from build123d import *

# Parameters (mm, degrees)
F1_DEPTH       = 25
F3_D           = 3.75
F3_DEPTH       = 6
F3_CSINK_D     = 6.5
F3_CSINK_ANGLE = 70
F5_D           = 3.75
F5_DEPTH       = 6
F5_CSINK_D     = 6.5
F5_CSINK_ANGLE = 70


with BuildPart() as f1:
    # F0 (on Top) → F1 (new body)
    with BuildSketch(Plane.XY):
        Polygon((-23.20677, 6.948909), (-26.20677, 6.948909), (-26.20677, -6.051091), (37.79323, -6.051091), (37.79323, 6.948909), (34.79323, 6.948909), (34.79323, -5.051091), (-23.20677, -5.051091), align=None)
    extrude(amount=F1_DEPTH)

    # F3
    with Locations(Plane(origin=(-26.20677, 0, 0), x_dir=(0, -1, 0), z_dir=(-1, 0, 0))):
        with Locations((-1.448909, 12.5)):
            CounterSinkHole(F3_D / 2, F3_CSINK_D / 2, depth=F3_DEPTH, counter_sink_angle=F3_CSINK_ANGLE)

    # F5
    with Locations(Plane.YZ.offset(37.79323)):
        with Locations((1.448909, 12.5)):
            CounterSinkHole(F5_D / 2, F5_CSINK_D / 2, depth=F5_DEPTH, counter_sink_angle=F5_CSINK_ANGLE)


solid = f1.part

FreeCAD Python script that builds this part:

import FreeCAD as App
import Part
import Sketcher
Q = App.Units.Quantity

doc = App.newDocument("Part")
params = doc.addObject("Spreadsheet::Sheet", "Params")
for row, (alias, value) in enumerate([
    ("sketch1_width", "3 mm"),
    ("sketch1_width2", "64 mm"),
    ("sketch1_height", "13 mm"),
    ("sketch1_height2", "12 mm"),
    ("pad1_length", "25 mm"),
    ("sketch2_diameter", "3.75 mm"),
    ("hole_diameter", "3.75 mm"),
    ("hole_depth", "6 mm"),
    ("hole_csink_diameter", "6.5 mm"),
    ("sketch3_diameter", "3.75 mm"),
    ("hole2_diameter", "3.75 mm"),
    ("hole2_depth", "6 mm"),
    ("hole2_csink_diameter", "6.5 mm"),
], start=1):
    params.set(f"A{row}", alias)
    params.set(f"B{row}", "=" + value)
    params.setAlias(f"B{row}", alias)

body = doc.addObject("PartDesign::Body", "Body")

# Sketch on XY plane
sketch1 = body.newObject("Sketcher::SketchObject", "Sketch")
sketch1.AttachmentSupport = (doc.getObject("XY_Plane"), [""])
sketch1.MapMode = "FlatFace"
sketch1.addGeometry(Part.LineSegment(App.Vector(-23.2, 6.9, 0), App.Vector(-26.2, 6.9, 0)), False)
sketch1.addGeometry(Part.LineSegment(App.Vector(-26.2, 6.9, 0), App.Vector(-26.2, -6.1, 0)), False)
sketch1.addGeometry(Part.LineSegment(App.Vector(-26.2, -6.1, 0), App.Vector(37.8, -6.1, 0)), False)
sketch1.addGeometry(Part.LineSegment(App.Vector(37.8, -6.1, 0), App.Vector(37.8, 6.9, 0)), False)
sketch1.addGeometry(Part.LineSegment(App.Vector(37.8, 6.9, 0), App.Vector(34.8, 6.9, 0)), False)
sketch1.addGeometry(Part.LineSegment(App.Vector(34.8, 6.9, 0), App.Vector(34.8, -5.1, 0)), False)
sketch1.addGeometry(Part.LineSegment(App.Vector(34.8, -5.1, 0), App.Vector(-23.2, -5.1, 0)), False)
sketch1.addGeometry(Part.LineSegment(App.Vector(-23.2, -5.1, 0), App.Vector(-23.2, 6.9, 0)), False)
sketch1.addConstraint(Sketcher.Constraint("Coincident", 0, 2, 1, 1))
sketch1.addConstraint(Sketcher.Constraint("Coincident", 1, 2, 2, 1))
sketch1.addConstraint(Sketcher.Constraint("Coincident", 2, 2, 3, 1))
sketch1.addConstraint(Sketcher.Constraint("Coincident", 3, 2, 4, 1))
sketch1.addConstraint(Sketcher.Constraint("Coincident", 4, 2, 5, 1))
sketch1.addConstraint(Sketcher.Constraint("Coincident", 5, 2, 6, 1))
sketch1.addConstraint(Sketcher.Constraint("Coincident", 6, 2, 7, 1))
sketch1.addConstraint(Sketcher.Constraint("Coincident", 7, 2, 0, 1))
sketch1.addConstraint(Sketcher.Constraint("Horizontal", 0))
sketch1.addConstraint(Sketcher.Constraint("Vertical", 1))
sketch1.addConstraint(Sketcher.Constraint("Horizontal", 2))
sketch1.addConstraint(Sketcher.Constraint("Vertical", 3))
sketch1.addConstraint(Sketcher.Constraint("Horizontal", 4))
sketch1.addConstraint(Sketcher.Constraint("Vertical", 5))
sketch1.addConstraint(Sketcher.Constraint("Horizontal", 6))
sketch1.addConstraint(Sketcher.Constraint("Vertical", 7))
sketch1.addConstraint(Sketcher.Constraint("Horizontal", 0, 2, 3, 2))
sketch1.addConstraint(Sketcher.Constraint("Equal", 0, 4))
sketch1.addConstraint(Sketcher.Constraint("DistanceX", 0, 2, 0, 1, Q("3 mm")))
sketch1.addConstraint(Sketcher.Constraint("DistanceX", 2, 1, 2, 2, Q("64 mm")))
sketch1.addConstraint(Sketcher.Constraint("DistanceY", 1, 2, 1, 1, Q("13 mm")))
sketch1.addConstraint(Sketcher.Constraint("DistanceY", 5, 2, 5, 1, Q("12 mm")))
sketch1.addConstraint(Sketcher.Constraint("DistanceX", 0, 2, -1, 1, Q("26.20677 mm")))
sketch1.addConstraint(Sketcher.Constraint("DistanceY", -1, 1, 0, 2, Q("6.948909 mm")))
sketch1.setExpression("Constraints[18]", "Params.sketch1_width")
sketch1.setExpression("Constraints[19]", "Params.sketch1_width2")
sketch1.setExpression("Constraints[20]", "Params.sketch1_height")
sketch1.setExpression("Constraints[21]", "Params.sketch1_height2")
pad1 = body.newObject("PartDesign::Pad", "Pad")
pad1.Profile = sketch1
pad1.setExpression("Length", "Params.pad1_length")

# Sketch on YZ plane
sketch2 = body.newObject("Sketcher::SketchObject", "Sketch001")
sketch2.AttachmentSupport = (doc.getObject("YZ_Plane"), [""])
sketch2.MapMode = "FlatFace"
sketch2.AttachmentOffset = App.Placement(App.Vector(0, 0, -26.20677), App.Rotation())
sketch2.addGeometry(Part.Circle(App.Vector(1.4, 12.5, 0), App.Vector(0, 0, 1), 1.9), False)
sketch2.addConstraint(Sketcher.Constraint("Diameter", 0, Q("3.75 mm")))
sketch2.addConstraint(Sketcher.Constraint("DistanceY", -1, 1, 0, 3, Q("12.5 mm")))
sketch2.addConstraint(Sketcher.Constraint("DistanceX", -1, 1, 0, 3, Q("1.448909 mm")))
sketch2.setExpression("Constraints[0]", "Params.sketch2_diameter")
doc.recompute()
hole = body.newObject("PartDesign::Hole", "Hole")
hole.Profile = sketch2
hole.ThreadType = "None"
hole.setExpression("Diameter", "Params.hole_diameter")
hole.DepthType = "Dimension"
hole.setExpression("Depth", "Params.hole_depth")
hole.DrillPoint = "Flat"
hole.HoleCutType = "Countersink"
hole.setExpression("HoleCutDiameter", "Params.hole_csink_diameter")
hole.HoleCutCountersinkAngle = 70
hole.Reversed = True

# Sketch on YZ plane
sketch3 = body.newObject("Sketcher::SketchObject", "Sketch002")
sketch3.AttachmentSupport = (doc.getObject("YZ_Plane"), [""])
sketch3.MapMode = "FlatFace"
sketch3.AttachmentOffset = App.Placement(App.Vector(0, 0, 37.79323), App.Rotation())
sketch3.addGeometry(Part.Circle(App.Vector(1.4, 12.5, 0), App.Vector(0, 0, 1), 1.9), False)
sketch3.addConstraint(Sketcher.Constraint("Diameter", 0, Q("3.75 mm")))
sketch3.addConstraint(Sketcher.Constraint("DistanceY", -1, 1, 0, 3, Q("12.5 mm")))
sketch3.addConstraint(Sketcher.Constraint("DistanceX", -1, 1, 0, 3, Q("1.448909 mm")))
sketch3.setExpression("Constraints[0]", "Params.sketch3_diameter")
doc.recompute()
hole2 = body.newObject("PartDesign::Hole", "Hole001")
hole2.Profile = sketch3
hole2.ThreadType = "None"
hole2.setExpression("Diameter", "Params.hole2_diameter")
hole2.DepthType = "Dimension"
hole2.setExpression("Depth", "Params.hole2_depth")
hole2.DrillPoint = "Flat"
hole2.HoleCutType = "Countersink"
hole2.setExpression("HoleCutDiameter", "Params.hole2_csink_diameter")
hole2.HoleCutCountersinkAngle = 70

doc.recompute()
